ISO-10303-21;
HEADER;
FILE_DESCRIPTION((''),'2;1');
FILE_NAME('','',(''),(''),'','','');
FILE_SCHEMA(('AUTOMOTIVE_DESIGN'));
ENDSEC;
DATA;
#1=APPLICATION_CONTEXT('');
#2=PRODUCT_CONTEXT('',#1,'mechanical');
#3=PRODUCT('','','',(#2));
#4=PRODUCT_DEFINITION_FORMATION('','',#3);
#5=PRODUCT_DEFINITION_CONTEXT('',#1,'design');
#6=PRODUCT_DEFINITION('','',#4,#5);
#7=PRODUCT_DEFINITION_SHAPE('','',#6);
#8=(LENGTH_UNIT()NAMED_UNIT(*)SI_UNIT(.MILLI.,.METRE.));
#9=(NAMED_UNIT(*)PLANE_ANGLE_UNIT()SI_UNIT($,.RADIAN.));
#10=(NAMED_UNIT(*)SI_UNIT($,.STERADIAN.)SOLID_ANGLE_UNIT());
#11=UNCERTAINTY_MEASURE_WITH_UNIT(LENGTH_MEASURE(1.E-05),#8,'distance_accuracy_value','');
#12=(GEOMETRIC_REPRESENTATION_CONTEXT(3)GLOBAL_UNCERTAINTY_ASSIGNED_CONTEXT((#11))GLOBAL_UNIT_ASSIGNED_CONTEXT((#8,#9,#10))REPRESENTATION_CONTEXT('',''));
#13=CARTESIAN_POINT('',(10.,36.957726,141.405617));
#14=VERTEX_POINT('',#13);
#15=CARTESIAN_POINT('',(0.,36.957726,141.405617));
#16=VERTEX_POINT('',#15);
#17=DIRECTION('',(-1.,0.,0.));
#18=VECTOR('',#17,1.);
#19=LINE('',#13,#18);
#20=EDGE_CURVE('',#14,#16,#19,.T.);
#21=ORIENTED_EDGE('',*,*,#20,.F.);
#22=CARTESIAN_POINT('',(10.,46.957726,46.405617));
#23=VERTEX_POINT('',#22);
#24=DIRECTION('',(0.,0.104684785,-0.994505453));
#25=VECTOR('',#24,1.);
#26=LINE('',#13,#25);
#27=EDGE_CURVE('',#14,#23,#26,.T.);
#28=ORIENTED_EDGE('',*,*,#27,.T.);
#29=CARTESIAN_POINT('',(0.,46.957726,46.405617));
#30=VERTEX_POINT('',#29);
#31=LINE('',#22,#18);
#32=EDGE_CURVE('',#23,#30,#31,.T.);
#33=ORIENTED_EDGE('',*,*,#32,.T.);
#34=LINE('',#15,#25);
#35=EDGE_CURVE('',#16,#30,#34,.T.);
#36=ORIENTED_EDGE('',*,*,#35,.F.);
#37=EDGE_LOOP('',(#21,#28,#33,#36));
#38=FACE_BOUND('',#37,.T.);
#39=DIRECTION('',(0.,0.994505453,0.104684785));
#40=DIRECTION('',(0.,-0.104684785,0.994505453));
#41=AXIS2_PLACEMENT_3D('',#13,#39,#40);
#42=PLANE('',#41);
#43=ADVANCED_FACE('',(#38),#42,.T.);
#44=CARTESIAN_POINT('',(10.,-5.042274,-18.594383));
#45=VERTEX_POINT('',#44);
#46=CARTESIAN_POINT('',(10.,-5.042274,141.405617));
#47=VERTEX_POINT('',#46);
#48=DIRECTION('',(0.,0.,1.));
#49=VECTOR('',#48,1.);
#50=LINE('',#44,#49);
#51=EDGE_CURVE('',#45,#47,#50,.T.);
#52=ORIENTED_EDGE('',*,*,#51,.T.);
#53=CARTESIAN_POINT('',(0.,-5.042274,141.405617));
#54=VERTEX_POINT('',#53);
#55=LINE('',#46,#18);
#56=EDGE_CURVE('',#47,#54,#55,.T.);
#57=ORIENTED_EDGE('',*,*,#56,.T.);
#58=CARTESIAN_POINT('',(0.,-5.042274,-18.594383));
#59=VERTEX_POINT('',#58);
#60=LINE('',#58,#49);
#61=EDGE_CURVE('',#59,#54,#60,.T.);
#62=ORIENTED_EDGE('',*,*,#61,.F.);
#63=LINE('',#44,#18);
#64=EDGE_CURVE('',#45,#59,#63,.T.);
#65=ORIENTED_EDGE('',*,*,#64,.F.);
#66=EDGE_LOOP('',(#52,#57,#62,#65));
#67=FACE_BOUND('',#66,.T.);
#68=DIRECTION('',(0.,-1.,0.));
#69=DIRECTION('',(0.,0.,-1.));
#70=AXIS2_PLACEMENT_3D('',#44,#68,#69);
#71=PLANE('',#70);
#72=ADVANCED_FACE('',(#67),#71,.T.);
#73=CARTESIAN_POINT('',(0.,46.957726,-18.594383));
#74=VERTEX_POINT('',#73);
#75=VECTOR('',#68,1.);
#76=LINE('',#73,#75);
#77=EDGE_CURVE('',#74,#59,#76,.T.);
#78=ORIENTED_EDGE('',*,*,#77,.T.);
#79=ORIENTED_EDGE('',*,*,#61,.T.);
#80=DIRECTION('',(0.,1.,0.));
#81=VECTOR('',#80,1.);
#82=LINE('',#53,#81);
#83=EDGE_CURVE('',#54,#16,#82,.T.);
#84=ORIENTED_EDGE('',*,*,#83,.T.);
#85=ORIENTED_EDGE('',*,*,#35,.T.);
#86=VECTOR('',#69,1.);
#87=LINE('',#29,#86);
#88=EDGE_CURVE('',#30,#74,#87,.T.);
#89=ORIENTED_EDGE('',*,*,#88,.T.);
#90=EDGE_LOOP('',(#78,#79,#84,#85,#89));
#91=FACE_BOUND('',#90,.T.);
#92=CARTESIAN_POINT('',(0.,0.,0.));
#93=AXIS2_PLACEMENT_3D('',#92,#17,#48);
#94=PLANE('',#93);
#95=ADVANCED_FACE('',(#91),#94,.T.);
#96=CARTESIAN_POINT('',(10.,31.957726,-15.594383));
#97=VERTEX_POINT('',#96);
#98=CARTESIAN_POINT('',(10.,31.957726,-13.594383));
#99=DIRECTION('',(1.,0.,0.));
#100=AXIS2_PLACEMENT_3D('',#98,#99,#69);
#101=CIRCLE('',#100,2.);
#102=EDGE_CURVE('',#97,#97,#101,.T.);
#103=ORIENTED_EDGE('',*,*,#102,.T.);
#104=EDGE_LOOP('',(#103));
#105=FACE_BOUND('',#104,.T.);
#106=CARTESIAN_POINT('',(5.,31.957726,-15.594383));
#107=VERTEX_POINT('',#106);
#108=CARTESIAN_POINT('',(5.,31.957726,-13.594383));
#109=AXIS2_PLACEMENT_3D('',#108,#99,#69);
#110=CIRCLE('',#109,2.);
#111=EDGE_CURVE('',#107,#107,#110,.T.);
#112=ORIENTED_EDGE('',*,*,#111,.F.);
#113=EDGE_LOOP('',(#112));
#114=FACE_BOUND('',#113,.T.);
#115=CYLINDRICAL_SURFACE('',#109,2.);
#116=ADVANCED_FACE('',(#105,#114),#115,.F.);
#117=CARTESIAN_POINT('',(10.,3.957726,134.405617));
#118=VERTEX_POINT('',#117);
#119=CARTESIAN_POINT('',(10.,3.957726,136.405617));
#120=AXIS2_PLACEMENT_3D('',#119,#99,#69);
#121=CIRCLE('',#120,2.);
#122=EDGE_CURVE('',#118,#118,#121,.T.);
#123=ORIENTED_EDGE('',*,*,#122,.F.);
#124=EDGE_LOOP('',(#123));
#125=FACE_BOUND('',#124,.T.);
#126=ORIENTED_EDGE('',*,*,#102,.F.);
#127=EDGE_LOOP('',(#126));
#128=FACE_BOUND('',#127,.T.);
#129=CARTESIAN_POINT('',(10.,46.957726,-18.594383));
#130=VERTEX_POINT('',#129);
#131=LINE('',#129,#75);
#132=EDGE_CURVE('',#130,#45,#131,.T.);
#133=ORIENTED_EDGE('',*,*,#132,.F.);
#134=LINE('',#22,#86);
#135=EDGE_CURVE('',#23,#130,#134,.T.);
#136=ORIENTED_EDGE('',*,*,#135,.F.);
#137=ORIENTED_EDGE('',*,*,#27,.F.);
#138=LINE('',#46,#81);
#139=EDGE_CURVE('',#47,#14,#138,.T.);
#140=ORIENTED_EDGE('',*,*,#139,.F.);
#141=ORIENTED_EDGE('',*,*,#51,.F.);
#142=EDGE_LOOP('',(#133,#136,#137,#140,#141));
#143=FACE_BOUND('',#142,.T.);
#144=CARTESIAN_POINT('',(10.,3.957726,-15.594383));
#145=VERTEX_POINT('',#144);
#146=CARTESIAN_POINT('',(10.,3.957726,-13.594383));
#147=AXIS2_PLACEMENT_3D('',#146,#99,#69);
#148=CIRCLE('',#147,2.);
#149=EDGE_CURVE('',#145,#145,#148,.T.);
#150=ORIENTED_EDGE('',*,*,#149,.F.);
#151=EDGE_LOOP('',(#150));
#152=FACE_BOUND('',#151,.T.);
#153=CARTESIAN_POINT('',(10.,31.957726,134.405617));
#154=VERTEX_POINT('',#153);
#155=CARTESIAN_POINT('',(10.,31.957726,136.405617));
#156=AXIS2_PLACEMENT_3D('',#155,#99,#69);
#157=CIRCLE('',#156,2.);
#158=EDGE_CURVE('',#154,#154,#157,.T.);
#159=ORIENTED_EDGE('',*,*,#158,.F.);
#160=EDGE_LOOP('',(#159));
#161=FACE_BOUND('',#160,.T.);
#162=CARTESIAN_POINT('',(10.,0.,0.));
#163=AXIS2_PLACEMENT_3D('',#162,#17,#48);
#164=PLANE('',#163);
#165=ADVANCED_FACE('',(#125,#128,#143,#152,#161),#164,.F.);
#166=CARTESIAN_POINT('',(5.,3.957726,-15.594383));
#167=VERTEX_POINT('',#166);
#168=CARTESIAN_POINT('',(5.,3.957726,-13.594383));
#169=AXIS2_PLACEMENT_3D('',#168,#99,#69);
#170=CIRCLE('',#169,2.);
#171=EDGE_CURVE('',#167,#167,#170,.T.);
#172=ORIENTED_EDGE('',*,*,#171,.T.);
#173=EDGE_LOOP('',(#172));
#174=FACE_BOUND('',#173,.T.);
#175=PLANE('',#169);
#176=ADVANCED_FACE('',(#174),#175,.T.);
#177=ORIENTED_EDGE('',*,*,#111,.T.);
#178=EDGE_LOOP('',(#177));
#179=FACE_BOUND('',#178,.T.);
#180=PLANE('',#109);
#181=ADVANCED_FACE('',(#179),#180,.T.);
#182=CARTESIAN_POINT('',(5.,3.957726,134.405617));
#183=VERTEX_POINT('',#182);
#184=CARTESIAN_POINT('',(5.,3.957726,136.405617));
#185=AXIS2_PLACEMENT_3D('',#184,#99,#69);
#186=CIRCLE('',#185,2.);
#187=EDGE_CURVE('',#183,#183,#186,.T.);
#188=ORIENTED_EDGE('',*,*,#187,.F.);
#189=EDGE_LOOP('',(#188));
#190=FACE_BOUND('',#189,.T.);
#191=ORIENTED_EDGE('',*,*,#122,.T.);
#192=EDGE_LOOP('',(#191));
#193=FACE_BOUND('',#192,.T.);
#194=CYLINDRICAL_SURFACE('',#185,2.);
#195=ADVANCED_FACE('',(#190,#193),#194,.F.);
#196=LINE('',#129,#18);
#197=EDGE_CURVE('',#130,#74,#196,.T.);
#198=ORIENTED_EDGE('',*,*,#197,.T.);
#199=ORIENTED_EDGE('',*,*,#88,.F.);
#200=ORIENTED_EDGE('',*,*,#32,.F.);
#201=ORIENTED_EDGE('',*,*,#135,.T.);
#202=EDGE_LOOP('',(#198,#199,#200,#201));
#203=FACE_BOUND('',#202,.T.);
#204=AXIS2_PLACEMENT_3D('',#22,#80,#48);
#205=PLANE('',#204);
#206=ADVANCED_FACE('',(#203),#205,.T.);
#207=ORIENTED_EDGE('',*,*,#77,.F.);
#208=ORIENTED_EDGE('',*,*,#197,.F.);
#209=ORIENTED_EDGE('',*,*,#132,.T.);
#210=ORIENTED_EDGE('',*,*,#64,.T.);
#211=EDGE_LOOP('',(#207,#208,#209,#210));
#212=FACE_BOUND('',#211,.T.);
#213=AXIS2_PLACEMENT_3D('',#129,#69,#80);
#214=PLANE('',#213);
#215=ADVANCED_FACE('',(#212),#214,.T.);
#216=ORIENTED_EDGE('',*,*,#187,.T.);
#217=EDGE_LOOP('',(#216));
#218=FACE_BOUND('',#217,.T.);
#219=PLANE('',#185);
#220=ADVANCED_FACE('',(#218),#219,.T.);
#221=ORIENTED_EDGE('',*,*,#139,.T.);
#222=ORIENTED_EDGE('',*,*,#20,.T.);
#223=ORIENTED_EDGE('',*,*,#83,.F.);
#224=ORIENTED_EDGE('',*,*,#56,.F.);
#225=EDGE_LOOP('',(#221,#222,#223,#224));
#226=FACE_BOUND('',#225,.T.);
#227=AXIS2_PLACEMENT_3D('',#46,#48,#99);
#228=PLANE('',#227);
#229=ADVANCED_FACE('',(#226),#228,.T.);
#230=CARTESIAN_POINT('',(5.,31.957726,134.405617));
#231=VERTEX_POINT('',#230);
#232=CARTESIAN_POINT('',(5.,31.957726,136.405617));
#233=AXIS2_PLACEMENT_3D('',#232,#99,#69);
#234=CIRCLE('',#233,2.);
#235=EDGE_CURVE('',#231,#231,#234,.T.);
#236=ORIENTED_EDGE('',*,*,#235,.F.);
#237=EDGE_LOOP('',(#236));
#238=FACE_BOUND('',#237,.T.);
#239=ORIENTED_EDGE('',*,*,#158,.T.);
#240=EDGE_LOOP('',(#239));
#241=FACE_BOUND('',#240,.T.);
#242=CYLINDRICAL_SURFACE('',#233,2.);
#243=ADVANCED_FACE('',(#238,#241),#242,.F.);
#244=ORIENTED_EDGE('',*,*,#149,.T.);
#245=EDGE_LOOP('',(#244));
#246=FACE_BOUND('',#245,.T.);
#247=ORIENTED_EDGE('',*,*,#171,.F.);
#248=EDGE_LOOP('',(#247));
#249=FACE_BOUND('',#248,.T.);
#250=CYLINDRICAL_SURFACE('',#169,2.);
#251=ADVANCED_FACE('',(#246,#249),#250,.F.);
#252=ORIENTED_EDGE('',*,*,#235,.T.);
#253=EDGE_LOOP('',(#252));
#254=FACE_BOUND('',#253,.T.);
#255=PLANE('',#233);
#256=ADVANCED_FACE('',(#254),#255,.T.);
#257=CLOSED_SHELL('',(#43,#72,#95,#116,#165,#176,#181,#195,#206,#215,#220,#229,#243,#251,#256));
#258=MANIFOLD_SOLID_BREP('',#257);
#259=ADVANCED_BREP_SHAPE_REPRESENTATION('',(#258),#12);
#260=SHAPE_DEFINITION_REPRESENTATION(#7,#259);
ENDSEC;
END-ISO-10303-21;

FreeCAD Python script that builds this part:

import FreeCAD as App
import Part
import Sketcher


def add_polygon(sketch, points):
    """Adds a closed chain of lines whose ends are joined by coincident constraints."""
    first, n = sketch.GeometryCount, len(points)
    for a, b in zip(points, points[1:] + points[:1]):
        sketch.addGeometry(Part.LineSegment(App.Vector(*a, 0), App.Vector(*b, 0)), False)
    for i in range(n):
        sketch.addConstraint(Sketcher.Constraint("Coincident", first + i, 2, first + (i + 1) % n, 1))

doc = App.newDocument("Part")
body = doc.addObject("PartDesign::Body", "Body")

# Sketch on YZ plane
sketch1 = body.newObject("Sketcher::SketchObject", "Sketch")
sketch1.AttachmentSupport = (doc.getObject("YZ_Plane"), [""])
sketch1.MapMode = "FlatFace"
add_polygon(sketch1, [(-5, -19), (47, -19), (47, 46), (37, 141), (-5, 141)])  # lines 0-4
sketch1.addConstraint(Sketcher.Constraint("Horizontal", 0))
sketch1.addConstraint(Sketcher.Constraint("Vertical", 1))
sketch1.addConstraint(Sketcher.Constraint("Horizontal", 3))
sketch1.addConstraint(Sketcher.Constraint("Vertical", 4))
sketch1.addConstraint(Sketcher.Constraint("DistanceX", 0, 1, 0, 2, 52.0))
sketch1.addConstraint(Sketcher.Constraint("DistanceX", 3, 2, 3, 1, 42.0))
sketch1.addConstraint(Sketcher.Constraint("DistanceY", 1, 1, 1, 2, 65.0))
sketch1.addConstraint(Sketcher.Constraint("DistanceY", 4, 2, 4, 1, 160.0))
sketch1.addConstraint(Sketcher.Constraint("DistanceX", -1, 1, 0, 2, 46.957726))
sketch1.addConstraint(Sketcher.Constraint("DistanceY", 0, 2, -1, 1, 18.594383))
pad1 = body.newObject("PartDesign::Pad", "Pad")
pad1.Profile = sketch1
pad1.Length = 10

# Sketch on YZ plane
sketch2 = body.newObject("Sketcher::SketchObject", "Sketch001")
sketch2.AttachmentSupport = (doc.getObject("YZ_Plane"), [""])
sketch2.MapMode = "FlatFace"
sketch2.AttachmentOffset = App.Placement(App.Vector(0, 0, 10), App.Rotation())
sketch2.addGeometry(Part.Circle(App.Vector(32, 136.4, 0), App.Vector(0, 0, 1), 2), False)
sketch2.addGeometry(Part.Circle(App.Vector(4, 136.4, 0), App.Vector(0, 0, 1), 2), False)
sketch2.addGeometry(Part.Circle(App.Vector(4, -13.6, 0), App.Vector(0, 0, 1), 2), False)
sketch2.addGeometry(Part.Circle(App.Vector(32, -13.6, 0), App.Vector(0, 0, 1), 2), False)
sketch2.addConstraint(Sketcher.Constraint("Equal", 0, 1))
sketch2.addConstraint(Sketcher.Constraint("Equal", 1, 2))
sketch2.addConstraint(Sketcher.Constraint("Equal", 2, 3))
sketch2.addConstraint(Sketcher.Constraint("Horizontal", 0, 3, 1, 3))
sketch2.addConstraint(Sketcher.Constraint("Horizontal", 2, 3, 3, 3))
sketch2.addConstraint(Sketcher.Constraint("Vertical", 1, 3, 2, 3))
sketch2.addConstraint(Sketcher.Constraint("Vertical", 0, 3, 3, 3))
sketch2.addConstraint(Sketcher.Constraint("Diameter", 0, 4.0))
sketch2.addConstraint(Sketcher.Constraint("DistanceX", 1, 3, 0, 3, 28.0))
sketch2.addConstraint(Sketcher.Constraint("DistanceY", 2, 3, 1, 3, 150.0))
sketch2.addConstraint(Sketcher.Constraint("DistanceX", -1, 1, 0, 3, 31.957726))
sketch2.addConstraint(Sketcher.Constraint("DistanceY", -1, 1, 0, 3, 136.405617))
pocket1 = body.newObject("PartDesign::Pocket", "Pocket")
pocket1.Profile = sketch2
pocket1.Length = 5

doc.recompute()
